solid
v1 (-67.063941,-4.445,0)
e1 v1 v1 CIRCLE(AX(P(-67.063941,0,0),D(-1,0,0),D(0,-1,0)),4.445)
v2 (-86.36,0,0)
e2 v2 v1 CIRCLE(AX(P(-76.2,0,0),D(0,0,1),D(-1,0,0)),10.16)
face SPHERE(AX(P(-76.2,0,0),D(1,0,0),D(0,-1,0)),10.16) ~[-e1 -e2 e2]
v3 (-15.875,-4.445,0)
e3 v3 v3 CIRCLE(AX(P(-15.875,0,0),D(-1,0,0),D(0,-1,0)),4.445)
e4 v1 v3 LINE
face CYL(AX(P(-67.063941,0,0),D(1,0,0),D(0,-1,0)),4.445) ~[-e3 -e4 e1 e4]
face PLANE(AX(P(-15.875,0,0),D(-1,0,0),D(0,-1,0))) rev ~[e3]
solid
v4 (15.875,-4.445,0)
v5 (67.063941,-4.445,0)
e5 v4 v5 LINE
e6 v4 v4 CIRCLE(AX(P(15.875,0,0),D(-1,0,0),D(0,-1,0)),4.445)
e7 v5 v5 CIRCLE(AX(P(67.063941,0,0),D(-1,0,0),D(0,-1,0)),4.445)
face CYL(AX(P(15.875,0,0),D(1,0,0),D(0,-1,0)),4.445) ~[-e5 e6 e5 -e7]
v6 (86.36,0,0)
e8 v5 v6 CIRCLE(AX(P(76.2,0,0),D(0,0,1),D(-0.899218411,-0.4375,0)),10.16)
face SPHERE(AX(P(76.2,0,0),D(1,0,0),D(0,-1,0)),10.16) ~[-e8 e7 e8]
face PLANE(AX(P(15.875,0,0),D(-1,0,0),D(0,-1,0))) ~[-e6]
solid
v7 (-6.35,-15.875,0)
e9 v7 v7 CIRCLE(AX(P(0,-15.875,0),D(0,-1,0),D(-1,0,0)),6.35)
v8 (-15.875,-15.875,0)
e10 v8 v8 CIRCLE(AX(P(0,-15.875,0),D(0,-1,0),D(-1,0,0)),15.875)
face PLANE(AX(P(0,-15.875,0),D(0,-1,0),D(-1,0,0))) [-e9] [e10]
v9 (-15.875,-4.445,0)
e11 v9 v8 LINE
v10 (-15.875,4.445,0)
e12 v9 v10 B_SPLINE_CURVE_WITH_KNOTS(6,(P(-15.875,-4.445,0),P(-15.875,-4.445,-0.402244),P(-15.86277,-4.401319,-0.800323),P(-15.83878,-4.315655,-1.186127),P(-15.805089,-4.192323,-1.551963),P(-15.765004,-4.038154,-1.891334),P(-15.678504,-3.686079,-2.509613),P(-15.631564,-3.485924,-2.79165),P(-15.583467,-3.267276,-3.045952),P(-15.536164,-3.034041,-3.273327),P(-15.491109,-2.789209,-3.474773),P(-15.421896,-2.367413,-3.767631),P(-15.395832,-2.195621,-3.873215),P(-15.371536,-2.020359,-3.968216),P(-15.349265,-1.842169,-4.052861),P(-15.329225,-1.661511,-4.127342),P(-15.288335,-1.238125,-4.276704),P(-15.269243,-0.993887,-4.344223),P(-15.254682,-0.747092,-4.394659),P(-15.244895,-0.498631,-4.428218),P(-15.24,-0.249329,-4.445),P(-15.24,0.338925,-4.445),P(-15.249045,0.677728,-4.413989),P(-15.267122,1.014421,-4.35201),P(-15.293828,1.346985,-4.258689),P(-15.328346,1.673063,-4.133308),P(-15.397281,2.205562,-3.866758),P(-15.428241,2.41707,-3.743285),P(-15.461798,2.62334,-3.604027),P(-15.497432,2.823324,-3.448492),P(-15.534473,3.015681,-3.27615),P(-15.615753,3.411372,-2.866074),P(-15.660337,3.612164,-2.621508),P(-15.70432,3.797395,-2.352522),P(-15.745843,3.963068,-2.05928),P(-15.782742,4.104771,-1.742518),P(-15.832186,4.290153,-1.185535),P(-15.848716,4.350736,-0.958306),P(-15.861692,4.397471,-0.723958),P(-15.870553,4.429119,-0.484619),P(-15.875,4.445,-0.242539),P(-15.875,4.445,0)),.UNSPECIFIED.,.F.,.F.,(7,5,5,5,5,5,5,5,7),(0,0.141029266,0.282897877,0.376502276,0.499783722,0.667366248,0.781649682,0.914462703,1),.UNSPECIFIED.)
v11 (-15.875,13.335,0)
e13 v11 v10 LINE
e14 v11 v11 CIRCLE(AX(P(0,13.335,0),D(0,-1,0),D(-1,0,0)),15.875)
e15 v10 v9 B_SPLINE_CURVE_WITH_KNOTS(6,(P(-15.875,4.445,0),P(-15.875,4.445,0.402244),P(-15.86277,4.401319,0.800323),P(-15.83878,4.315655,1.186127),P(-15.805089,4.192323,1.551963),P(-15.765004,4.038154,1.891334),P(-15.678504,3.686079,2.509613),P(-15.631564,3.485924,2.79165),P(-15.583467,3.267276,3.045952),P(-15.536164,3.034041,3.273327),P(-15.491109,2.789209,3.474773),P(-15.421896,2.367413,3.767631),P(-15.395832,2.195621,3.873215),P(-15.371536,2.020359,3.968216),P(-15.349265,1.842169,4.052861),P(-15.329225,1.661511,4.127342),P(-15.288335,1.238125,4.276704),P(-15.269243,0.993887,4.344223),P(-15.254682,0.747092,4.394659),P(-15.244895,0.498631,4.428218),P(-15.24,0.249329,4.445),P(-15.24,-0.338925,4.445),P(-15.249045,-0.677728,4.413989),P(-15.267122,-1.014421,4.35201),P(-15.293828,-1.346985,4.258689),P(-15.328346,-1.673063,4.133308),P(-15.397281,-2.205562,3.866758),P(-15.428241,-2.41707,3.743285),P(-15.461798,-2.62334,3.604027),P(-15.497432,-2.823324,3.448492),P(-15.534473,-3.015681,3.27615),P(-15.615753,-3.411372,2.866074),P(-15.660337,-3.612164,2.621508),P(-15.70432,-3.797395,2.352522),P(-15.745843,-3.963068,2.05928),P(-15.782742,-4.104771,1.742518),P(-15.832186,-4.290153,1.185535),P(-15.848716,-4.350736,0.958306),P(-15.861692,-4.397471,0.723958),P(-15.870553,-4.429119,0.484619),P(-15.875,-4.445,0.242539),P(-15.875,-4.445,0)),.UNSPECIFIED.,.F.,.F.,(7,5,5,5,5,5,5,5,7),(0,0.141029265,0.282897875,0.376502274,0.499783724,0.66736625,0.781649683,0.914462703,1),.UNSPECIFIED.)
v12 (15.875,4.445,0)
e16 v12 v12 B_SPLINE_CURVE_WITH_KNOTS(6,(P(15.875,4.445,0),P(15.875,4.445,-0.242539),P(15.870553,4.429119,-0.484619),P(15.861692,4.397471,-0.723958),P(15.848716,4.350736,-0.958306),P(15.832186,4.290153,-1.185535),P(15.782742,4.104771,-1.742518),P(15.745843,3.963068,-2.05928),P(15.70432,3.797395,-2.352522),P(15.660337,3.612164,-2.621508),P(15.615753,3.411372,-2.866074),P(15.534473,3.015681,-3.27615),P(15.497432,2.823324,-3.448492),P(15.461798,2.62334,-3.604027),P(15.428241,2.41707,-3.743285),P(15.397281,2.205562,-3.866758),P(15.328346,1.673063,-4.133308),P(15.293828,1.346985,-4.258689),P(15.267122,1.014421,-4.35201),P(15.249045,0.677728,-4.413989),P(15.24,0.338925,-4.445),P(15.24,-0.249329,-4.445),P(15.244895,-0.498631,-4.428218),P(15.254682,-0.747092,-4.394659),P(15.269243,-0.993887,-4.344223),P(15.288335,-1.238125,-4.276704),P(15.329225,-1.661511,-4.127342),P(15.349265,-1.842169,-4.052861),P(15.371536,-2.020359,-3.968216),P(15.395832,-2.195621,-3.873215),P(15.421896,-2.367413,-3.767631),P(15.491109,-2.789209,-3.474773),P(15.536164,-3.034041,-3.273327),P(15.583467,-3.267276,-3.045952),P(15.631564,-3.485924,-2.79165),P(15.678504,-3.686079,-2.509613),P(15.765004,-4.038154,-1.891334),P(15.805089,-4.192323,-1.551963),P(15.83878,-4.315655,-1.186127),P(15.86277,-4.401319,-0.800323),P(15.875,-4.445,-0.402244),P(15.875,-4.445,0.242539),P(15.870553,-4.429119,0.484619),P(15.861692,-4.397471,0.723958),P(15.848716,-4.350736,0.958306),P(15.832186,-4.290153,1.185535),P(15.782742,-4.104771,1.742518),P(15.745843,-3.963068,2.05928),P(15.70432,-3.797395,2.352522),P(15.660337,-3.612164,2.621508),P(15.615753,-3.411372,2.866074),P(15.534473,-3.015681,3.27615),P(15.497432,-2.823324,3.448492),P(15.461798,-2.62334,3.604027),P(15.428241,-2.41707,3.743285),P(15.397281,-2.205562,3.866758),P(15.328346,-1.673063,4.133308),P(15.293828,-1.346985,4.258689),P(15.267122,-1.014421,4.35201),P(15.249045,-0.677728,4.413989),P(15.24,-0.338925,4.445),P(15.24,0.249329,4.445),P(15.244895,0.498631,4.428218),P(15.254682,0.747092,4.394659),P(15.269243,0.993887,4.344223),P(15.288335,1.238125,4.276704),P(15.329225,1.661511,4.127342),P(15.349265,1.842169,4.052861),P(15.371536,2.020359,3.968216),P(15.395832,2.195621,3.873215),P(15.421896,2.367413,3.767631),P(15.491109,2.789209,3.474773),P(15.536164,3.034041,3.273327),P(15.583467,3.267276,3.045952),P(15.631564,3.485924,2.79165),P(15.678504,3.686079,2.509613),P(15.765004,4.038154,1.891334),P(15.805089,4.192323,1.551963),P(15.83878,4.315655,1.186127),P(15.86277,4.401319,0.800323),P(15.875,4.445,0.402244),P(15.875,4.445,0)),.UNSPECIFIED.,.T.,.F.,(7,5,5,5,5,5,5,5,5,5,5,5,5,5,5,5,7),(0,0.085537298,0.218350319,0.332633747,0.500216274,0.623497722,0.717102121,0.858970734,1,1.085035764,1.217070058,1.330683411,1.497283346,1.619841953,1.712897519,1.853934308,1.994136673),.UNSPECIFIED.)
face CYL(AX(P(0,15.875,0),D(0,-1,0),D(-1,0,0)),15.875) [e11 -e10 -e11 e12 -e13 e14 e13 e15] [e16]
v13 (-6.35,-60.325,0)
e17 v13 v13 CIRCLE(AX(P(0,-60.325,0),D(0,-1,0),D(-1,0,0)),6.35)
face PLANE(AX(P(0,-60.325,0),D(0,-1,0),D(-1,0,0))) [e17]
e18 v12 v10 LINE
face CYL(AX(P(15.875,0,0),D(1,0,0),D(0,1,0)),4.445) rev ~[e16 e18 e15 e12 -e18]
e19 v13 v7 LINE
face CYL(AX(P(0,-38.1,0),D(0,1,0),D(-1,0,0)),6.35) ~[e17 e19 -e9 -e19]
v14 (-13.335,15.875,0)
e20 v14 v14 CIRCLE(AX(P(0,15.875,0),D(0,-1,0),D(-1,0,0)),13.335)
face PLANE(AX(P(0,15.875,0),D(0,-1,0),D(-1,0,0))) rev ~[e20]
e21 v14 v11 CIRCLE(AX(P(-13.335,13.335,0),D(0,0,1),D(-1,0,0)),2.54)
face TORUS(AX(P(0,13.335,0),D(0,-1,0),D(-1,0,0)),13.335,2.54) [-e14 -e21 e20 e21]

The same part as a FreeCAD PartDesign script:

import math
import FreeCAD as App
import Part
import Sketcher
Q = App.Units.Quantity


def edges_at(feature, points):
    """Names of the edges that pass closest to the given points."""
    edges = feature.Shape.Edges
    near = lambda p: min(range(len(edges)), key=lambda i: edges[i].distToShape(Part.Vertex(*p))[0])
    return sorted({f"Edge{near(p) + 1}" for p in points})


def add_polygon(sketch, points):
    """Adds a closed chain of lines whose ends are joined by coincident constraints."""
    first, n = sketch.GeometryCount, len(points)
    for a, b in zip(points, points[1:] + points[:1]):
        sketch.addGeometry(Part.LineSegment(App.Vector(*a, 0), App.Vector(*b, 0)), False)
    for i in range(n):
        sketch.addConstraint(Sketcher.Constraint("Coincident", first + i, 2, first + (i + 1) % n, 1))

doc = App.newDocument("Part")
params = doc.addObject("Spreadsheet::Sheet", "Params")
for row, (alias, value) in enumerate([
    ("sketch1_height", "3 in"),
    ("sketch1_width", "0.25 in"),
    ("sketch1_height2", "1.25 in"),
    ("sketch1_width2", "0.625 in"),
    ("revolution_angle", "360 deg"),
    ("sketch2_diameter", "0.35 in"),
    ("pocket1_length", "1.25 in"),
    ("fillet_radius", "0.1 in"),
    ("sketch3_radius", "0.4 in"),
    ("sketch3_width", "2.775 in"),
    ("sketch3_height", "0.175 in"),
    ("revolution2_angle", "360 deg"),
    ("sketch4_radius", "0.4 in"),
    ("sketch4_width", "2.775 in"),
    ("sketch4_height", "0.175 in"),
    ("revolution3_angle", "360 deg"),
], start=1):
    params.set(f"A{row}", alias)
    params.set(f"B{row}", "=" + value)
    params.setAlias(f"B{row}", alias)

body = doc.addObject("PartDesign::Body", "Body")

sketch1 = doc.addObject("Sketcher::SketchObject", "Sketch")
body.addObject(sketch1)
sketch1.AttachmentSupport = (doc.XY_Plane, [""])
sketch1.MapMode = "FlatFace"
add_polygon(sketch1, [(0, 15.875), (-15.875, 15.875), (-15.875, -15.875), (-6.35, -15.875), (-6.35, -60.325), (0, -60.325)])
sketch1.addConstraint(Sketcher.Constraint("Horizontal", 0))
sketch1.addConstraint(Sketcher.Constraint("Vertical", 1))
sketch1.addConstraint(Sketcher.Constraint("Horizontal", 2))
sketch1.addConstraint(Sketcher.Constraint("Vertical", 3))
sketch1.addConstraint(Sketcher.Constraint("Horizontal", 4))
sketch1.addConstraint(Sketcher.Constraint("Vertical", 5))
sketch1.addConstraint(Sketcher.Constraint("PointOnObject", 4, 2, -2))
sketch1.addConstraint(Sketcher.Constraint("DistanceY", 5, 1, 5, 2, Q("3 in")))
sketch1.addConstraint(Sketcher.Constraint("DistanceX", 4, 1, 4, 2, Q("0.25 in")))
sketch1.addConstraint(Sketcher.Constraint("DistanceY", 1, 2, 1, 1, Q("1.25 in")))
sketch1.addConstraint(Sketcher.Constraint("DistanceX", 0, 2, 0, 1, Q("0.625 in")))
sketch1.addConstraint(Sketcher.Constraint("DistanceY", -1, 1, 0, 2, Q("0.625 in")))
sketch1.setExpression("Constraints[13]", "Params.sketch1_height")
sketch1.setExpression("Constraints[14]", "Params.sketch1_width")
sketch1.setExpression("Constraints[15]", "Params.sketch1_height2")
sketch1.setExpression("Constraints[16]", "Params.sketch1_width2")
revolution = doc.addObject("PartDesign::Revolution", "Revolution")
body.addObject(revolution)
revolution.Profile = sketch1
revolution.ReferenceAxis = (sketch1, ["V_Axis"])
revolution.setExpression("Angle", "Params.revolution_angle")

sketch2 = doc.addObject("Sketcher::SketchObject", "Sketch001")
body.addObject(sketch2)
sketch2.AttachmentSupport = (doc.YZ_Plane, [""])
sketch2.MapMode = "FlatFace"
sketch2.AttachmentOffset = App.Placement(App.Vector(0, 0, 0.625 * 25.4), App.Rotation())
sketch2.addGeometry(Part.Circle(App.Vector(0, 0, 0), App.Vector(0, 0, 1), 4.445), False)
sketch2.addConstraint(Sketcher.Constraint("Coincident", 0, 3, -1, 1))
sketch2.addConstraint(Sketcher.Constraint("Diameter", 0, Q("0.35 in")))
sketch2.setExpression("Constraints[1]", "Params.sketch2_diameter")
pocket1 = doc.addObject("PartDesign::Pocket", "Pocket")
body.addObject(pocket1)
pocket1.Profile = sketch2
pocket1.setExpression("Length", "Params.pocket1_length")
doc.recompute()

fillet = doc.addObject("PartDesign::Fillet", "Fillet")
body.addObject(fillet)
fillet.Base = (pocket1, edges_at(pocket1, [(15.875, 15.875, 0)]))
fillet.setExpression("Radius", "Params.fillet_radius")
body2 = doc.addObject("PartDesign::Body", "Body001")

sketch3 = doc.addObject("Sketcher::SketchObject", "Sketch002")
body2.addObject(sketch3)
sketch3.AttachmentSupport = (doc.getObject("XY_Plane001"), [""])
sketch3.MapMode = "FlatFace"
sketch3.addGeometry(Part.LineSegment(App.Vector(15.875, 0, 0), App.Vector(15.875, -4.445, 0)), False)
sketch3.addGeometry(Part.LineSegment(App.Vector(15.875, -4.445, 0), App.Vector(67.063941, -4.445, 0)), False)
sketch3.addGeometry(Part.ArcOfCircle(Part.Circle(App.Vector(76.2, 0, 0), App.Vector(0, 0, 1), 10.16), math.radians(-154.05552), math.radians(0)), False)
sketch3.addGeometry(Part.LineSegment(App.Vector(86.36, 0, 0), App.Vector(15.875, 0, 0)), False)
sketch3.addConstraint(Sketcher.Constraint("Coincident", 0, 2, 1, 1))
sketch3.addConstraint(Sketcher.Constraint("Coincident", 1, 2, 2, 1))
sketch3.addConstraint(Sketcher.Constraint("Coincident", 2, 2, 3, 1))
sketch3.addConstraint(Sketcher.Constraint("Coincident", 3, 2, 0, 1))
sketch3.addConstraint(Sketcher.Constraint("Vertical", 0))
sketch3.addConstraint(Sketcher.Constraint("Horizontal", 1))
sketch3.addConstraint(Sketcher.Constraint("Horizontal", 3))
sketch3.addConstraint(Sketcher.Constraint("PointOnObject", 2, 3, -1))
sketch3.addConstraint(Sketcher.Constraint("PointOnObject", 2, 2, -1))
sketch3.addConstraint(Sketcher.Constraint("Radius", 2, Q("0.4 in")))
sketch3.addConstraint(Sketcher.Constraint("DistanceX", -1, 1, 2, 3, Q("3 in")))
sketch3.addConstraint(Sketcher.Constraint("DistanceX", 3, 2, 3, 1, Q("2.775 in")))
sketch3.addConstraint(Sketcher.Constraint("DistanceY", 0, 2, 0, 1, Q("0.175 in")))
sketch3.setExpression("Constraints[9]", "Params.sketch3_radius")
sketch3.setExpression("Constraints[11]", "Params.sketch3_width")
sketch3.setExpression("Constraints[12]", "Params.sketch3_height")
revolution2 = doc.addObject("PartDesign::Revolution", "Revolution001")
body2.addObject(revolution2)
revolution2.Profile = sketch3
revolution2.ReferenceAxis = (sketch3, ["H_Axis"])
revolution2.setExpression("Angle", "Params.revolution2_angle")
body3 = doc.addObject("PartDesign::Body", "Body002")

sketch4 = doc.addObject("Sketcher::SketchObject", "Sketch003")
body3.addObject(sketch4)
sketch4.AttachmentSupport = (doc.getObject("XY_Plane002"), [""])
sketch4.MapMode = "FlatFace"
sketch4.addGeometry(Part.LineSegment(App.Vector(-15.875, 0, 0), App.Vector(-86.36, 0, 0)), False)
sketch4.addGeometry(Part.ArcOfCircle(Part.Circle(App.Vector(-76.2, 0, 0), App.Vector(0, 0, 1), 10.16), math.radians(180), math.radians(334.05552)), False)
sketch4.addGeometry(Part.LineSegment(App.Vector(-67.063941, -4.445, 0), App.Vector(-15.875, -4.445, 0)), False)
sketch4.addGeometry(Part.LineSegment(App.Vector(-15.875, -4.445, 0), App.Vector(-15.875, 0, 0)), False)
sketch4.addConstraint(Sketcher.Constraint("Coincident", 0, 2, 1, 1))
sketch4.addConstraint(Sketcher.Constraint("Coincident", 1, 2, 2, 1))
sketch4.addConstraint(Sketcher.Constraint("Coincident", 2, 2, 3, 1))
sketch4.addConstraint(Sketcher.Constraint("Coincident", 3, 2, 0, 1))
sketch4.addConstraint(Sketcher.Constraint("Horizontal", 0))
sketch4.addConstraint(Sketcher.Constraint("Horizontal", 2))
sketch4.addConstraint(Sketcher.Constraint("Vertical", 3))
sketch4.addConstraint(Sketcher.Constraint("PointOnObject", 1, 3, -1))
sketch4.addConstraint(Sketcher.Constraint("PointOnObject", 0, 2, -1))
sketch4.addConstraint(Sketcher.Constraint("Radius", 1, Q("0.4 in")))
sketch4.addConstraint(Sketcher.Constraint("DistanceX", 1, 3, -1, 1, Q("3 in")))
sketch4.addConstraint(Sketcher.Constraint("DistanceX", 0, 2, 0, 1, Q("2.775 in")))
sketch4.addConstraint(Sketcher.Constraint("DistanceY", 3, 1, 3, 2, Q("0.175 in")))
sketch4.setExpression("Constraints[9]", "Params.sketch4_radius")
sketch4.setExpression("Constraints[11]", "Params.sketch4_width")
sketch4.setExpression("Constraints[12]", "Params.sketch4_height")
revolution3 = doc.addObject("PartDesign::Revolution", "Revolution002")
body3.addObject(revolution3)
revolution3.Profile = sketch4
revolution3.ReferenceAxis = (sketch4, ["H_Axis"])
revolution3.setExpression("Angle", "Params.revolution3_angle")

doc.recompute()
